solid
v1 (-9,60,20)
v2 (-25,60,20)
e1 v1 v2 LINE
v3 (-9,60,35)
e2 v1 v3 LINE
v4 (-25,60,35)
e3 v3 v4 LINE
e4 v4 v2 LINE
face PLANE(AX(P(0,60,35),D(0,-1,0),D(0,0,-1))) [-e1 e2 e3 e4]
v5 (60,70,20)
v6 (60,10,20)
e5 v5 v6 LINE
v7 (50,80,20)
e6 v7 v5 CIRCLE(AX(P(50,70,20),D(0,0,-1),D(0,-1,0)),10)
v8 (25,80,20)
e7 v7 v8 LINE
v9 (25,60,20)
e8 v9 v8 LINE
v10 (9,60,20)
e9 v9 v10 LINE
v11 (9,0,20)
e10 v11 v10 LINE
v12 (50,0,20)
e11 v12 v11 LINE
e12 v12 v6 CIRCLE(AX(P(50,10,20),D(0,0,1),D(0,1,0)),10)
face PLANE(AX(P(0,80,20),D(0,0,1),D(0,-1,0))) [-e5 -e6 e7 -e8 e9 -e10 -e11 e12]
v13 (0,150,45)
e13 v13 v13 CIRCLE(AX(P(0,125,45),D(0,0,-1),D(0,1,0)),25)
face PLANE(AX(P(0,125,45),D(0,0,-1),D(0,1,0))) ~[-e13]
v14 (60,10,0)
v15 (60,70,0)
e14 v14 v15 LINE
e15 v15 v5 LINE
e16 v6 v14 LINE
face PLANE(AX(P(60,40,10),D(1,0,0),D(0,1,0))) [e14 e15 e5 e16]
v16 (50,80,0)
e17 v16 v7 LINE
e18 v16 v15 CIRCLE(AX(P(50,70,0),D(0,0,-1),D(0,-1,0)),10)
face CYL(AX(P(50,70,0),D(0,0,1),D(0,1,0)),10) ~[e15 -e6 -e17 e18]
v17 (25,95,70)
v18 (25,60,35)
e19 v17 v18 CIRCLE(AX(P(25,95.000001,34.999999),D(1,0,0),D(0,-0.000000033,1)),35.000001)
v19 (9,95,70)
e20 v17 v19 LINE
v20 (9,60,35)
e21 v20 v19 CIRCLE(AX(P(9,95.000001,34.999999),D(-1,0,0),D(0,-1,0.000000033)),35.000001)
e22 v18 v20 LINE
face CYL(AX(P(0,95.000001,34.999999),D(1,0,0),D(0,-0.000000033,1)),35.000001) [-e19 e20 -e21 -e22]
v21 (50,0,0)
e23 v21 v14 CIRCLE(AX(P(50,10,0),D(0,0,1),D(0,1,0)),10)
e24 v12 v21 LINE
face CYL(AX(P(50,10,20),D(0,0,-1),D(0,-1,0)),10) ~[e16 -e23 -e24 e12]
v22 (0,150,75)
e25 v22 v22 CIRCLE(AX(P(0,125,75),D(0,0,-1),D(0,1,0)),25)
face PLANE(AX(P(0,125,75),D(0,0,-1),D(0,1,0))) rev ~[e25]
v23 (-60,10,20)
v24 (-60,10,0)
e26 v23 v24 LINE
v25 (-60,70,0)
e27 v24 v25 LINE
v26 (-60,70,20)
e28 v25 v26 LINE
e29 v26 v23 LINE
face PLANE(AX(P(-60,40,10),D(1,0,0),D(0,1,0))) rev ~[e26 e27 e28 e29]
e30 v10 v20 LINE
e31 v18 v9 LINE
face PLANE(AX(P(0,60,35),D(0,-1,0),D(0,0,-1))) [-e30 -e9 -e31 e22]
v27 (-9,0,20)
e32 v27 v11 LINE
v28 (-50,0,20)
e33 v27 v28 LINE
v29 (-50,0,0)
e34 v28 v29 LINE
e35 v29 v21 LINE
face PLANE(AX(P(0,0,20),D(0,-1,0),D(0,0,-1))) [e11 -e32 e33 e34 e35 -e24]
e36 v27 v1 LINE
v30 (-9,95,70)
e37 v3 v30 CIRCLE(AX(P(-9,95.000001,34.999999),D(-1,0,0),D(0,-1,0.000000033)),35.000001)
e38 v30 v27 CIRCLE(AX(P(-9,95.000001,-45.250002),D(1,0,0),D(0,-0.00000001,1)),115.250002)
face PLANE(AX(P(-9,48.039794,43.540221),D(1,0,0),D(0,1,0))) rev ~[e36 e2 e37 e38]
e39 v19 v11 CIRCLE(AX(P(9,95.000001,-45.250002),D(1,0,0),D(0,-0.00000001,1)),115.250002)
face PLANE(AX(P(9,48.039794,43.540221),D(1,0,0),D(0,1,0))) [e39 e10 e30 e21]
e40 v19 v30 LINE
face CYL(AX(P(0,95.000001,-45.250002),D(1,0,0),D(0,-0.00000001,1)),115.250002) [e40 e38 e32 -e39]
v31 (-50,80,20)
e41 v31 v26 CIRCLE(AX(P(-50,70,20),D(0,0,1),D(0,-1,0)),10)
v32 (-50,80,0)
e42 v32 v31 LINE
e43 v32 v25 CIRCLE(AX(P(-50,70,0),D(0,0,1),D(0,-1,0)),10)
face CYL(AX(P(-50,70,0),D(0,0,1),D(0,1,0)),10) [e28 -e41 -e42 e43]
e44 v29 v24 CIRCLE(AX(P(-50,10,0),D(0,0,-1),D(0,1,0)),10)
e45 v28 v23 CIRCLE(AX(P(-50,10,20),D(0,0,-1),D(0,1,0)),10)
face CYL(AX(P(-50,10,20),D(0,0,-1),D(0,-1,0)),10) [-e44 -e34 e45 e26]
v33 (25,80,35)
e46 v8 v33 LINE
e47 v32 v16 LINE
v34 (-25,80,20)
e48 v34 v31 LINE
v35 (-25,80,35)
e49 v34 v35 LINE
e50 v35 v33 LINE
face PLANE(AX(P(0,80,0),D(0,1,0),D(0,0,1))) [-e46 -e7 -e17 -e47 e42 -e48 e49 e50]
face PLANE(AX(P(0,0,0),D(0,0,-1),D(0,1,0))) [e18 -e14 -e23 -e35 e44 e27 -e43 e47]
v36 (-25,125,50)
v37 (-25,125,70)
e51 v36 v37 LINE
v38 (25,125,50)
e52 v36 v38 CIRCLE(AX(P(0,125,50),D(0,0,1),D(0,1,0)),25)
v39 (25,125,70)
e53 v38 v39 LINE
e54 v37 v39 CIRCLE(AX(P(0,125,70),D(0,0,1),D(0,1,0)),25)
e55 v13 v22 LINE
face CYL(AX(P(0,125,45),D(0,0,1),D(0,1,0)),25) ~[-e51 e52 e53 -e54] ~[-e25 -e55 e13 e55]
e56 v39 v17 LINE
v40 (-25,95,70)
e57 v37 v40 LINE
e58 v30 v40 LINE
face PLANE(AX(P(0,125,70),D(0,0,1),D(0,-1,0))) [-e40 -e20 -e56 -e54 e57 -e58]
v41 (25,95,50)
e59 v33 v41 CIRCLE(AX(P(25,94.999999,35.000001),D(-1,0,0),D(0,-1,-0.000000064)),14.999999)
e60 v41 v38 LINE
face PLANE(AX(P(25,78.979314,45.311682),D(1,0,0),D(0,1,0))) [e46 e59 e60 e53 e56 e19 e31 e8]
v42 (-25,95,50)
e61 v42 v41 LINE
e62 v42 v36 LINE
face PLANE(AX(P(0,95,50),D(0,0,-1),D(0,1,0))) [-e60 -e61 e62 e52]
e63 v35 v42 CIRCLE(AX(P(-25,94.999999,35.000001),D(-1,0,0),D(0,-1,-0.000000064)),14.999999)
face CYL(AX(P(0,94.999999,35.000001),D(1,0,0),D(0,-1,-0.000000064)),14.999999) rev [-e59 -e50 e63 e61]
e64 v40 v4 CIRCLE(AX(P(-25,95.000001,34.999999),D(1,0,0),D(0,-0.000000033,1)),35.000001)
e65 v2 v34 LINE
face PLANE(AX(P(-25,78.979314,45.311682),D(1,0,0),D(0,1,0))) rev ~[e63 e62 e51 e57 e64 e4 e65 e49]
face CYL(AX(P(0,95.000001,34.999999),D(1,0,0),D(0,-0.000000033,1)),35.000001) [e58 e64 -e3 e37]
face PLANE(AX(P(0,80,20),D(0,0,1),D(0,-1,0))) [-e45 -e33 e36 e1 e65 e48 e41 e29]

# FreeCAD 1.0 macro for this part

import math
import FreeCAD as App
import Part
import Sketcher
Q = App.Units.Quantity


def edges_at(feature, points):
    """Names of the edges that pass closest to the given points."""
    edges = feature.Shape.Edges
    near = lambda p: min(range(len(edges)), key=lambda i: edges[i].distToShape(Part.Vertex(*p))[0])
    return sorted({f"Edge{near(p) + 1}" for p in points})

doc = App.newDocument("Part")
params = doc.addObject("Spreadsheet::Sheet", "Params")
for row, (alias, value) in enumerate([
    ("sketch1_width", "80 mm"),
    ("sketch1_height", "20 mm"),
    ("pad1_length", "120 mm"),
    ("sketch2_radius", "35.000001 mm"),
    ("sketch2_width", "60 mm"),
    ("sketch2_height", "15 mm"),
    ("pad2_length", "18 mm"),
    ("sketch3_radius", "14.999999 mm"),
    ("sketch3_radius2", "35.000001 mm"),
    ("sketch3_width", "30 mm"),
    ("sketch3_height", "15 mm"),
    ("pad3_length", "50 mm"),
    ("sketch4_width", "25 mm"),
    ("sketch4_height", "30 mm"),
    ("revolution_angle", "360 deg"),
    ("fillet_radius", "10 mm"),
], start=1):
    params.set(f"A{row}", alias)
    params.set(f"B{row}", "=" + value)
    params.setAlias(f"B{row}", alias)

body = doc.addObject("PartDesign::Body", "Body")

sketch1 = body.newObject("Sketcher::SketchObject", "Sketch")
sketch1.AttachmentSupport = (doc.getObject("YZ_Plane"), [""])
sketch1.MapMode = "FlatFace"
sketch1.addGeometry([
    Part.LineSegment(App.Vector(0, 20, 0), App.Vector(0, 0, 0)),
    Part.LineSegment(App.Vector(0, 0, 0), App.Vector(80, 0, 0)),
    Part.LineSegment(App.Vector(80, 0, 0), App.Vector(80, 20, 0)),
    Part.LineSegment(App.Vector(80, 20, 0), App.Vector(0, 20, 0)),
], False)
sketch1.addConstraint([
    Sketcher.Constraint("Coincident", 0, 2, 1, 1),
    Sketcher.Constraint("Coincident", 1, 2, 2, 1),
    Sketcher.Constraint("Coincident", 2, 2, 3, 1),
    Sketcher.Constraint("Coincident", 3, 2, 0, 1),
    Sketcher.Constraint("Vertical", 0),
    Sketcher.Constraint("Horizontal", 1),
    Sketcher.Constraint("Vertical", 2),
    Sketcher.Constraint("Horizontal", 3),
    Sketcher.Constraint("Coincident", 0, 2, -1, 1),
    Sketcher.Constraint("DistanceX", 1, 1, 1, 2, Q("80 mm")),
    Sketcher.Constraint("DistanceY", 0, 2, 0, 1, Q("20 mm")),
])
sketch1.setExpression("Constraints[9]", "Params.sketch1_width")
sketch1.setExpression("Constraints[10]", "Params.sketch1_height")
pad1 = body.newObject("PartDesign::Pad", "Pad")
pad1.Profile = sketch1
pad1.setExpression("Length", "Params.pad1_length")
pad1.Midplane = True

sketch2 = body.newObject("Sketcher::SketchObject", "Sketch001")
sketch2.AttachmentSupport = (doc.getObject("YZ_Plane"), [""])
sketch2.MapMode = "FlatFace"
sketch2.addGeometry([
    Part.ArcOfCircle(Part.Circle(App.Vector(95, -45, 0), App.Vector(0, 0, 1), 115), math.radians(90), math.radians(146)),
    Part.LineSegment(App.Vector(0, 20, 0), App.Vector(60, 20, 0)),
    Part.LineSegment(App.Vector(60, 20, 0), App.Vector(60, 35, 0)),
    Part.ArcOfCircle(Part.Circle(App.Vector(95, 35, 0), App.Vector(0, 0, 1), 35), math.radians(90), math.radians(180)),
], False)
sketch2.addConstraint([
    Sketcher.Constraint("Coincident", 0, 2, 1, 1),
    Sketcher.Constraint("Coincident", 1, 2, 2, 1),
    Sketcher.Constraint("Tangent", 2, 2, 3, 2),
    Sketcher.Constraint("Tangent", 3, 1, 0, 1),
    Sketcher.Constraint("Horizontal", 1),
    Sketcher.Constraint("Vertical", 2),
    Sketcher.Constraint("PointOnObject", 0, 2, -2),
    Sketcher.Constraint("Vertical", 0, 3, 3, 3),
    Sketcher.Constraint("Radius", 3, Q("35.000001 mm")),
    Sketcher.Constraint("DistanceX", 1, 1, 1, 2, Q("60 mm")),
    Sketcher.Constraint("DistanceY", 2, 1, 2, 2, Q("15 mm")),
    Sketcher.Constraint("DistanceY", -1, 1, 3, 3, Q("34.999999 mm")),
])
sketch2.setExpression("Constraints[8]", "Params.sketch2_radius")
sketch2.setExpression("Constraints[9]", "Params.sketch2_width")
sketch2.setExpression("Constraints[10]", "Params.sketch2_height")
pad2 = body.newObject("PartDesign::Pad", "Pad001")
pad2.Profile = sketch2
pad2.setExpression("Length", "Params.pad2_length")
pad2.Midplane = True

sketch3 = body.newObject("Sketcher::SketchObject", "Sketch002")
sketch3.AttachmentSupport = (doc.getObject("YZ_Plane"), [""])
sketch3.MapMode = "FlatFace"
sketch3.addGeometry([
    Part.LineSegment(App.Vector(60, 20, 0), App.Vector(80, 20, 0)),
    Part.LineSegment(App.Vector(80, 20, 0), App.Vector(80, 35, 0)),
    Part.ArcOfCircle(Part.Circle(App.Vector(95, 35, 0), App.Vector(0, 0, 1), 15), math.radians(90), math.radians(180)),
    Part.LineSegment(App.Vector(95, 50, 0), App.Vector(125, 50, 0)),
    Part.LineSegment(App.Vector(125, 50, 0), App.Vector(125, 70, 0)),
    Part.LineSegment(App.Vector(125, 70, 0), App.Vector(95, 70, 0)),
    Part.ArcOfCircle(Part.Circle(App.Vector(95, 35, 0), App.Vector(0, 0, 1), 35), math.radians(90), math.radians(180)),
    Part.LineSegment(App.Vector(60, 35, 0), App.Vector(60, 20, 0)),
], False)
sketch3.addConstraint([
    Sketcher.Constraint("Coincident", 0, 2, 1, 1),
    Sketcher.Constraint("Tangent", 1, 2, 2, 2),
    Sketcher.Constraint("Tangent", 2, 1, 3, 1),
    Sketcher.Constraint("Coincident", 3, 2, 4, 1),
    Sketcher.Constraint("Coincident", 4, 2, 5, 1),
    Sketcher.Constraint("Tangent", 5, 2, 6, 1),
    Sketcher.Constraint("Tangent", 6, 2, 7, 1),
    Sketcher.Constraint("Coincident", 7, 2, 0, 1),
    Sketcher.Constraint("Horizontal", 0),
    Sketcher.Constraint("Vertical", 1),
    Sketcher.Constraint("Horizontal", 3),
    Sketcher.Constraint("Vertical", 4),
    Sketcher.Constraint("Horizontal", 5),
    Sketcher.Constraint("Vertical", 7),
    Sketcher.Constraint("Coincident", 6, 3, 2, 3),
    Sketcher.Constraint("Radius", 2, Q("14.999999 mm")),
    Sketcher.Constraint("Radius", 6, Q("35.000001 mm")),
    Sketcher.Constraint("DistanceX", 3, 1, 3, 2, Q("30 mm")),
    Sketcher.Constraint("DistanceY", 1, 1, 1, 2, Q("15 mm")),
    Sketcher.Constraint("DistanceX", -1, 1, 2, 3, Q("94.999999 mm")),
    Sketcher.Constraint("DistanceY", -1, 1, 2, 3, Q("35.000001 mm")),
])
sketch3.setExpression("Constraints[15]", "Params.sketch3_radius")
sketch3.setExpression("Constraints[16]", "Params.sketch3_radius2")
sketch3.setExpression("Constraints[17]", "Params.sketch3_width")
sketch3.setExpression("Constraints[18]", "Params.sketch3_height")
pad3 = body.newObject("PartDesign::Pad", "Pad002")
pad3.Profile = sketch3
pad3.setExpression("Length", "Params.pad3_length")
pad3.Midplane = True

sketch4 = body.newObject("Sketcher::SketchObject", "Sketch003")
sketch4.AttachmentSupport = (doc.getObject("YZ_Plane"), [""])
sketch4.MapMode = "FlatFace"
sketch4.addGeometry([
    Part.LineSegment(App.Vector(125, 75, 0), App.Vector(125, 45, 0)),
    Part.LineSegment(App.Vector(125, 45, 0), App.Vector(150, 45, 0)),
    Part.LineSegment(App.Vector(150, 45, 0), App.Vector(150, 75, 0)),
    Part.LineSegment(App.Vector(150, 75, 0), App.Vector(125, 75, 0)),
], False)
sketch4.addGeometry(Part.LineSegment(App.Vector(125, 75, 0), App.Vector(125, 45, 0)), True)
sketch4.addConstraint([
    Sketcher.Constraint("Coincident", 0, 2, 1, 1),
    Sketcher.Constraint("Coincident", 1, 2, 2, 1),
    Sketcher.Constraint("Coincident", 2, 2, 3, 1),
    Sketcher.Constraint("Coincident", 3, 2, 0, 1),
    Sketcher.Constraint("Vertical", 0),
    Sketcher.Constraint("Horizontal", 1),
    Sketcher.Constraint("Vertical", 2),
    Sketcher.Constraint("Horizontal", 3),
    Sketcher.Constraint("Vertical", 4),
    Sketcher.Constraint("Coincident", 4, 1, 3, 2),
    Sketcher.Constraint("Horizontal", 1, 2, 4, 2),
    Sketcher.Constraint("DistanceX", 1, 1, 1, 2, Q("25 mm")),
    Sketcher.Constraint("DistanceY", 0, 2, 0, 1, Q("30 mm")),
    Sketcher.Constraint("DistanceX", -1, 1, 0, 2, Q("125 mm")),
    Sketcher.Constraint("DistanceY", -1, 1, 0, 2, Q("45 mm")),
])
sketch4.setExpression("Constraints[11]", "Params.sketch4_width")
sketch4.setExpression("Constraints[12]", "Params.sketch4_height")
revolution = body.newObject("PartDesign::Revolution", "Revolution")
revolution.Profile = sketch4
revolution.ReferenceAxis = (sketch4, ["Axis0"])
revolution.setExpression("Angle", "Params.revolution_angle")
doc.recompute()

fillet = body.newObject("PartDesign::Fillet", "Fillet")
fillet.Base = (revolution, edges_at(revolution, [
    (60, 0, 10),
    (60, 80, 10),
    (-60, 80, 10),
    (-60, 0, 10),
]))
fillet.setExpression("Radius", "Params.fillet_radius")

doc.recompute()
